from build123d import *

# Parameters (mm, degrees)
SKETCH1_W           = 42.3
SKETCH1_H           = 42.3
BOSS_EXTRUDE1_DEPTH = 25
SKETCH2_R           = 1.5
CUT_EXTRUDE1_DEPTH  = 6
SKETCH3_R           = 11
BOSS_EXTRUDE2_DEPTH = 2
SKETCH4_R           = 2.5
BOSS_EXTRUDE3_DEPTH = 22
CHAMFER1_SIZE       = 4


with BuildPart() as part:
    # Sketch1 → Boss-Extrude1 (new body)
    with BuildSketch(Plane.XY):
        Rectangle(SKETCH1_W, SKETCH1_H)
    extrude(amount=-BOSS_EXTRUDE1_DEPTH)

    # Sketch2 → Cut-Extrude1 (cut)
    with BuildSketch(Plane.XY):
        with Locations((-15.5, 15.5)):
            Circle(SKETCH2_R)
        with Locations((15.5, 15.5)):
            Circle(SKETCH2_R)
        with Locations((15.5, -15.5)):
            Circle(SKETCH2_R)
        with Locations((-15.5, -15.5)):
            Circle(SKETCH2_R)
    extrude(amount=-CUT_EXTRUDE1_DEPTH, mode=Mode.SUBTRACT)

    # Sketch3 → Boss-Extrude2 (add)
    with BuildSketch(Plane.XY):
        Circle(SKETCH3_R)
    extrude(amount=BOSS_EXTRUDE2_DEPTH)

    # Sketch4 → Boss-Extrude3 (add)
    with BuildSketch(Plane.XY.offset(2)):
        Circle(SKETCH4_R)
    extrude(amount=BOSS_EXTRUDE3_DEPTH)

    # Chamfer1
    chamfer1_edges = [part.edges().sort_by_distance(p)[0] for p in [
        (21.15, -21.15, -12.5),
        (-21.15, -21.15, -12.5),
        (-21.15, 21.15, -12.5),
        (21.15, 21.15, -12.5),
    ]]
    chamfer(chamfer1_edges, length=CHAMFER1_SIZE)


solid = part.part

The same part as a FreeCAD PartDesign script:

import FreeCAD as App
import Part
import Sketcher

V = App.Vector


def edges_at(feature, points):
    """Names of the edges that pass closest to the given points."""
    edges = feature.Shape.Edges
    near = lambda p: min(range(len(edges)), key=lambda i: edges[i].distToShape(Part.Vertex(*p))[0])
    return sorted({f"Edge{near(p) + 1}" for p in points})


def add_polygon(sketch, points):
    """Adds a closed chain of lines whose ends are joined by coincident constraints."""
    first, n = sketch.GeometryCount, len(points)
    for a, b in zip(points, points[1:] + points[:1]):
        sketch.addGeometry(Part.LineSegment(App.Vector(*a, 0), App.Vector(*b, 0)), False)
    for i in range(n):
        sketch.addConstraint(Sketcher.Constraint("Coincident", first + i, 2, first + (i + 1) % n, 1))

doc = App.newDocument("Part")
params = doc.addObject("Spreadsheet::Sheet", "Params")
for row, (alias, value) in enumerate([
    ("sketch1_width", "42.3 mm"),
    ("pad1_length", "25 mm"),
    ("sketch2_diameter", "3 mm"),
    ("pocket1_length", "6 mm"),
    ("sketch3_diameter", "22 mm"),
    ("pad2_length", "2 mm"),
    ("sketch4_diameter", "5 mm"),
    ("pad3_length", "22 mm"),
    ("chamfer_size", "4 mm"),
], start=1):
    params.set(f"A{row}", alias)
    params.set(f"B{row}", "=" + value)
    params.setAlias(f"B{row}", alias)

body = doc.addObject("PartDesign::Body", "Body")

sketch1 = body.newObject("Sketcher::SketchObject", "Sketch")
sketch1.AttachmentSupport = (doc.getObject("XY_Plane"), [""])
sketch1.MapMode = "FlatFace"
add_polygon(sketch1, [(-21.15, 21.15), (-21.15, -21.15), (21.15, -21.15), (21.15, 21.15)])
sketch1.addConstraint([
    Sketcher.Constraint("Vertical", 0),
    Sketcher.Constraint("Horizontal", 1),
    Sketcher.Constraint("Vertical", 2),
    Sketcher.Constraint("Horizontal", 3),
    Sketcher.Constraint("Symmetric", 0, 2, 2, 2, -1, 1),
    Sketcher.Constraint("Equal", 3, 0),
    Sketcher.Constraint("DistanceX", 1, 1, 1, 2, 42.3),
])
sketch1.setExpression("Constraints[10]", "Params.sketch1_width")
pad1 = body.newObject("PartDesign::Pad", "Pad")
pad1.Profile = sketch1
pad1.setExpression("Length", "Params.pad1_length")
pad1.Reversed = True

sketch2 = body.newObject("Sketcher::SketchObject", "Sketch001")
sketch2.AttachmentSupport = (doc.getObject("XY_Plane"), [""])
sketch2.MapMode = "FlatFace"
sketch2.addGeometry([
    Part.Circle(V(-15.5, 15.5, 0), V(0, 0, 1), 1.5),
    Part.Circle(V(15.5, 15.5, 0), V(0, 0, 1), 1.5),
    Part.Circle(V(15.5, -15.5, 0), V(0, 0, 1), 1.5),
    Part.Circle(V(-15.5, -15.5, 0), V(0, 0, 1), 1.5),
], False)
sketch2.addConstraint([
    Sketcher.Constraint("Equal", 0, 1),
    Sketcher.Constraint("Equal", 1, 2),
    Sketcher.Constraint("Equal", 2, 3),
    Sketcher.Constraint("Symmetric", 0, 3, 2, 3, -1, 1),
    Sketcher.Constraint("Symmetric", 1, 3, 3, 3, -1, 1),
    Sketcher.Constraint("Symmetric", 0, 3, 1, 3, -2),
    Sketcher.Constraint("Diameter", 0, 3.0),
    Sketcher.Constraint("DistanceX", 0, 3, 1, 3, 31.0),
    Sketcher.Constraint("DistanceY", 2, 3, 1, 3, 31.0),
])
sketch2.setExpression("Constraints[6]", "Params.sketch2_diameter")
pocket1 = body.newObject("PartDesign::Pocket", "Pocket")
pocket1.Profile = sketch2
pocket1.setExpression("Length", "Params.pocket1_length")

sketch3 = body.newObject("Sketcher::SketchObject", "Sketch002")
sketch3.AttachmentSupport = (doc.getObject("XY_Plane"), [""])
sketch3.MapMode = "FlatFace"
sketch3.addGeometry(Part.Circle(V(0, 0, 0), V(0, 0, 1), 11), False)
sketch3.addConstraint([
    Sketcher.Constraint("Coincident", 0, 3, -1, 1),
    Sketcher.Constraint("Diameter", 0, 22.0),
])
sketch3.setExpression("Constraints[1]", "Params.sketch3_diameter")
pad2 = body.newObject("PartDesign::Pad", "Pad001")
pad2.Profile = sketch3
pad2.setExpression("Length", "Params.pad2_length")

sketch4 = body.newObject("Sketcher::SketchObject", "Sketch003")
sketch4.AttachmentSupport = (doc.getObject("XY_Plane"), [""])
sketch4.MapMode = "FlatFace"
sketch4.AttachmentOffset = App.Placement(V(0, 0, 2), App.Rotation())
sketch4.addGeometry(Part.Circle(V(0, 0, 0), V(0, 0, 1), 2.5), False)
sketch4.addConstraint([
    Sketcher.Constraint("Coincident", 0, 3, -1, 1),
    Sketcher.Constraint("Diameter", 0, 5.0),
])
sketch4.setExpression("Constraints[1]", "Params.sketch4_diameter")
pad3 = body.newObject("PartDesign::Pad", "Pad002")
pad3.Profile = sketch4
pad3.setExpression("Length", "Params.pad3_length")
doc.recompute()

chamfer = body.newObject("PartDesign::Chamfer", "Chamfer")
chamfer.Base = (pad3, edges_at(pad3, [
    (21.15, -21.15, -12.5),
    (-21.15, -21.15, -12.5),
    (-21.15, 21.15, -12.5),
    (21.15, 21.15, -12.5),
]))
chamfer.setExpression("Size", "Params.chamfer_size")

doc.recompute()
